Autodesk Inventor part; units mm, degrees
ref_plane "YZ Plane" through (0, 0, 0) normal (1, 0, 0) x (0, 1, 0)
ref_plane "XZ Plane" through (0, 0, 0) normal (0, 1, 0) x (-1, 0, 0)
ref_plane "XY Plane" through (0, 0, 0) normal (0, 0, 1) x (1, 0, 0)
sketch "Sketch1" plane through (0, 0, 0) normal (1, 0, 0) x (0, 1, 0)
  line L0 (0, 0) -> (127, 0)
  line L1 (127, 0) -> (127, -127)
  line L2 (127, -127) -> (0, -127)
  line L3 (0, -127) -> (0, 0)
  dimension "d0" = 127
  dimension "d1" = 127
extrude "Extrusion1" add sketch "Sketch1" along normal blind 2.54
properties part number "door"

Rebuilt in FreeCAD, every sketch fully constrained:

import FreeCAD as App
import Part
import Sketcher
from FreeCAD import Vector
Q = App.Units.Quantity

doc = App.newDocument("Part")
body = doc.addObject("PartDesign::Body", "Body")

# Sketch on YZ plane
sketch1 = body.newObject("Sketcher::SketchObject", "Sketch")
sketch1.AttachmentSupport = (doc.getObject("YZ_Plane"), [""])
sketch1.MapMode = "FlatFace"
sketch1.addGeometry(Part.LineSegment(Vector(127, 0, 0), Vector(0, 0, 0)), False)
sketch1.addGeometry(Part.LineSegment(Vector(0, 0, 0), Vector(0, -127, 0)), False)
sketch1.addGeometry(Part.LineSegment(Vector(0, -127, 0), Vector(127, -127, 0)), False)
sketch1.addGeometry(Part.LineSegment(Vector(127, -127, 0), Vector(127, 0, 0)), False)
sketch1.addConstraint(Sketcher.Constraint("Coincident", 0, 2, 1, 1))
sketch1.addConstraint(Sketcher.Constraint("Coincident", 1, 2, 2, 1))
sketch1.addConstraint(Sketcher.Constraint("Coincident", 2, 2, 3, 1))
sketch1.addConstraint(Sketcher.Constraint("Coincident", 3, 2, 0, 1))
sketch1.addConstraint(Sketcher.Constraint("Horizontal", 0))
sketch1.addConstraint(Sketcher.Constraint("Vertical", 1))
sketch1.addConstraint(Sketcher.Constraint("Horizontal", 2))
sketch1.addConstraint(Sketcher.Constraint("Vertical", 3))
sketch1.addConstraint(Sketcher.Constraint("Coincident", 0, 2, -1, 1))
sketch1.addConstraint(Sketcher.Constraint("Equal", 2, 1))
sketch1.addConstraint(Sketcher.Constraint("DistanceX", 0, 2, 0, 1, Q("5 in")))
pad1 = body.newObject("PartDesign::Pad", "Pad")
pad1.Profile = sketch1
pad1.Length = Q("0.1 in")

doc.recompute()
